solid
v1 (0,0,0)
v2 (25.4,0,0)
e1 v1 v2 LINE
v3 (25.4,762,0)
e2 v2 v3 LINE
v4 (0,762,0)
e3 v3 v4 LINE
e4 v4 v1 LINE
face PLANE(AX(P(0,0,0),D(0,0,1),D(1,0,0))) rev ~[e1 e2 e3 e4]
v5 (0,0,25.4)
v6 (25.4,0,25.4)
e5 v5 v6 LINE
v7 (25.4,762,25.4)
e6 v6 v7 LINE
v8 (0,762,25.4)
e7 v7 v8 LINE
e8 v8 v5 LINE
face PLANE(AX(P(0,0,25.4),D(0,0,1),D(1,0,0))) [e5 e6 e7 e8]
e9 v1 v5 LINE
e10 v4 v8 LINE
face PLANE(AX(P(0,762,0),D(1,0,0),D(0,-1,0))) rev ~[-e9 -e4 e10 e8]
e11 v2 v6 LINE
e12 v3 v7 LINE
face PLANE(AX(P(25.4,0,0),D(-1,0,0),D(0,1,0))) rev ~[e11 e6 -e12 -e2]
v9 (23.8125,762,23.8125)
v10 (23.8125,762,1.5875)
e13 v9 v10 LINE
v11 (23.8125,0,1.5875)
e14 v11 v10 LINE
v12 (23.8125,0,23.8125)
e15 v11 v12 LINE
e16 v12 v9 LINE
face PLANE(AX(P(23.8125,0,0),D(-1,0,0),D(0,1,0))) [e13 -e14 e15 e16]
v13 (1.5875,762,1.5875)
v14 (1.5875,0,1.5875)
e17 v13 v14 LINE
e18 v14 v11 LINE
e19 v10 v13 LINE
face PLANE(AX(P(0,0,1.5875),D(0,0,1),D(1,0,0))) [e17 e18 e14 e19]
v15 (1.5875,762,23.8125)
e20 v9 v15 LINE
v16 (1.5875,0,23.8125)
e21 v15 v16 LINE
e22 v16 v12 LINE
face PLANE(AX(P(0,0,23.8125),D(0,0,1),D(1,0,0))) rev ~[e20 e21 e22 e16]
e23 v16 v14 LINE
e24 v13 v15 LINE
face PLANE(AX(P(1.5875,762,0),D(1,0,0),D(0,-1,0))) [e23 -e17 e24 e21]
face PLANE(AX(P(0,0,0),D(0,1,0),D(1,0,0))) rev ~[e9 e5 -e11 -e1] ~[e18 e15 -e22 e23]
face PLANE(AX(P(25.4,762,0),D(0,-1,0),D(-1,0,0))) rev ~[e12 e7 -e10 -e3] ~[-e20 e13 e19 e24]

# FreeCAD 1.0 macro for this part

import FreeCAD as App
import Part
import Sketcher

V = App.Vector
Q = App.Units.Quantity


def faces_at(feature, points):
    """Names of the faces that lie closest to the given points."""
    faces = feature.Shape.Faces
    near = lambda p: min(range(len(faces)), key=lambda i: faces[i].distToShape(Part.Vertex(*p))[0])
    return sorted({f"Face{near(p) + 1}" for p in points})

doc = App.newDocument("Part")
body = doc.addObject("PartDesign::Body", "Body")

# Sketch on XY plane
sketch1 = doc.addObject("Sketcher::SketchObject", "Sketch")
body.addObject(sketch1)
sketch1.AttachmentSupport = (doc.XY_Plane, [""])
sketch1.MapMode = "FlatFace"
sketch1.addGeometry([
    Part.LineSegment(V(0, 762, 0), V(0, 0, 0)),
    Part.LineSegment(V(0, 0, 0), V(25, 0, 0)),
    Part.LineSegment(V(25, 0, 0), V(25, 762, 0)),
    Part.LineSegment(V(25, 762, 0), V(0, 762, 0)),
], False)
sketch1.addConstraint([
    Sketcher.Constraint("Coincident", 0, 2, 1, 1),
    Sketcher.Constraint("Coincident", 1, 2, 2, 1),
    Sketcher.Constraint("Coincident", 2, 2, 3, 1),
    Sketcher.Constraint("Coincident", 3, 2, 0, 1),
    Sketcher.Constraint("Vertical", 0),
    Sketcher.Constraint("Horizontal", 1),
    Sketcher.Constraint("Vertical", 2),
    Sketcher.Constraint("Horizontal", 3),
    Sketcher.Constraint("Coincident", 0, 2, -1, 1),
    Sketcher.Constraint("DistanceX", 1, 1, 1, 2, Q("1 in")),
    Sketcher.Constraint("DistanceY", 0, 2, 0, 1, Q("30 in")),
])
pad1 = doc.addObject("PartDesign::Pad", "Pad")
body.addObject(pad1)
pad1.Profile = sketch1
pad1.Length = Q("1 in")
doc.recompute()

thickness = doc.addObject("PartDesign::Thickness", "Thickness")
body.addObject(thickness)
thickness.Base = (pad1, faces_at(pad1, [(16.933, 762, 8.467), (8.467, 0, 8.467)]))
thickness.Value = Q("0.0625 in")
thickness.Reversed = True
thickness.Join = "Intersection"

doc.recompute()
